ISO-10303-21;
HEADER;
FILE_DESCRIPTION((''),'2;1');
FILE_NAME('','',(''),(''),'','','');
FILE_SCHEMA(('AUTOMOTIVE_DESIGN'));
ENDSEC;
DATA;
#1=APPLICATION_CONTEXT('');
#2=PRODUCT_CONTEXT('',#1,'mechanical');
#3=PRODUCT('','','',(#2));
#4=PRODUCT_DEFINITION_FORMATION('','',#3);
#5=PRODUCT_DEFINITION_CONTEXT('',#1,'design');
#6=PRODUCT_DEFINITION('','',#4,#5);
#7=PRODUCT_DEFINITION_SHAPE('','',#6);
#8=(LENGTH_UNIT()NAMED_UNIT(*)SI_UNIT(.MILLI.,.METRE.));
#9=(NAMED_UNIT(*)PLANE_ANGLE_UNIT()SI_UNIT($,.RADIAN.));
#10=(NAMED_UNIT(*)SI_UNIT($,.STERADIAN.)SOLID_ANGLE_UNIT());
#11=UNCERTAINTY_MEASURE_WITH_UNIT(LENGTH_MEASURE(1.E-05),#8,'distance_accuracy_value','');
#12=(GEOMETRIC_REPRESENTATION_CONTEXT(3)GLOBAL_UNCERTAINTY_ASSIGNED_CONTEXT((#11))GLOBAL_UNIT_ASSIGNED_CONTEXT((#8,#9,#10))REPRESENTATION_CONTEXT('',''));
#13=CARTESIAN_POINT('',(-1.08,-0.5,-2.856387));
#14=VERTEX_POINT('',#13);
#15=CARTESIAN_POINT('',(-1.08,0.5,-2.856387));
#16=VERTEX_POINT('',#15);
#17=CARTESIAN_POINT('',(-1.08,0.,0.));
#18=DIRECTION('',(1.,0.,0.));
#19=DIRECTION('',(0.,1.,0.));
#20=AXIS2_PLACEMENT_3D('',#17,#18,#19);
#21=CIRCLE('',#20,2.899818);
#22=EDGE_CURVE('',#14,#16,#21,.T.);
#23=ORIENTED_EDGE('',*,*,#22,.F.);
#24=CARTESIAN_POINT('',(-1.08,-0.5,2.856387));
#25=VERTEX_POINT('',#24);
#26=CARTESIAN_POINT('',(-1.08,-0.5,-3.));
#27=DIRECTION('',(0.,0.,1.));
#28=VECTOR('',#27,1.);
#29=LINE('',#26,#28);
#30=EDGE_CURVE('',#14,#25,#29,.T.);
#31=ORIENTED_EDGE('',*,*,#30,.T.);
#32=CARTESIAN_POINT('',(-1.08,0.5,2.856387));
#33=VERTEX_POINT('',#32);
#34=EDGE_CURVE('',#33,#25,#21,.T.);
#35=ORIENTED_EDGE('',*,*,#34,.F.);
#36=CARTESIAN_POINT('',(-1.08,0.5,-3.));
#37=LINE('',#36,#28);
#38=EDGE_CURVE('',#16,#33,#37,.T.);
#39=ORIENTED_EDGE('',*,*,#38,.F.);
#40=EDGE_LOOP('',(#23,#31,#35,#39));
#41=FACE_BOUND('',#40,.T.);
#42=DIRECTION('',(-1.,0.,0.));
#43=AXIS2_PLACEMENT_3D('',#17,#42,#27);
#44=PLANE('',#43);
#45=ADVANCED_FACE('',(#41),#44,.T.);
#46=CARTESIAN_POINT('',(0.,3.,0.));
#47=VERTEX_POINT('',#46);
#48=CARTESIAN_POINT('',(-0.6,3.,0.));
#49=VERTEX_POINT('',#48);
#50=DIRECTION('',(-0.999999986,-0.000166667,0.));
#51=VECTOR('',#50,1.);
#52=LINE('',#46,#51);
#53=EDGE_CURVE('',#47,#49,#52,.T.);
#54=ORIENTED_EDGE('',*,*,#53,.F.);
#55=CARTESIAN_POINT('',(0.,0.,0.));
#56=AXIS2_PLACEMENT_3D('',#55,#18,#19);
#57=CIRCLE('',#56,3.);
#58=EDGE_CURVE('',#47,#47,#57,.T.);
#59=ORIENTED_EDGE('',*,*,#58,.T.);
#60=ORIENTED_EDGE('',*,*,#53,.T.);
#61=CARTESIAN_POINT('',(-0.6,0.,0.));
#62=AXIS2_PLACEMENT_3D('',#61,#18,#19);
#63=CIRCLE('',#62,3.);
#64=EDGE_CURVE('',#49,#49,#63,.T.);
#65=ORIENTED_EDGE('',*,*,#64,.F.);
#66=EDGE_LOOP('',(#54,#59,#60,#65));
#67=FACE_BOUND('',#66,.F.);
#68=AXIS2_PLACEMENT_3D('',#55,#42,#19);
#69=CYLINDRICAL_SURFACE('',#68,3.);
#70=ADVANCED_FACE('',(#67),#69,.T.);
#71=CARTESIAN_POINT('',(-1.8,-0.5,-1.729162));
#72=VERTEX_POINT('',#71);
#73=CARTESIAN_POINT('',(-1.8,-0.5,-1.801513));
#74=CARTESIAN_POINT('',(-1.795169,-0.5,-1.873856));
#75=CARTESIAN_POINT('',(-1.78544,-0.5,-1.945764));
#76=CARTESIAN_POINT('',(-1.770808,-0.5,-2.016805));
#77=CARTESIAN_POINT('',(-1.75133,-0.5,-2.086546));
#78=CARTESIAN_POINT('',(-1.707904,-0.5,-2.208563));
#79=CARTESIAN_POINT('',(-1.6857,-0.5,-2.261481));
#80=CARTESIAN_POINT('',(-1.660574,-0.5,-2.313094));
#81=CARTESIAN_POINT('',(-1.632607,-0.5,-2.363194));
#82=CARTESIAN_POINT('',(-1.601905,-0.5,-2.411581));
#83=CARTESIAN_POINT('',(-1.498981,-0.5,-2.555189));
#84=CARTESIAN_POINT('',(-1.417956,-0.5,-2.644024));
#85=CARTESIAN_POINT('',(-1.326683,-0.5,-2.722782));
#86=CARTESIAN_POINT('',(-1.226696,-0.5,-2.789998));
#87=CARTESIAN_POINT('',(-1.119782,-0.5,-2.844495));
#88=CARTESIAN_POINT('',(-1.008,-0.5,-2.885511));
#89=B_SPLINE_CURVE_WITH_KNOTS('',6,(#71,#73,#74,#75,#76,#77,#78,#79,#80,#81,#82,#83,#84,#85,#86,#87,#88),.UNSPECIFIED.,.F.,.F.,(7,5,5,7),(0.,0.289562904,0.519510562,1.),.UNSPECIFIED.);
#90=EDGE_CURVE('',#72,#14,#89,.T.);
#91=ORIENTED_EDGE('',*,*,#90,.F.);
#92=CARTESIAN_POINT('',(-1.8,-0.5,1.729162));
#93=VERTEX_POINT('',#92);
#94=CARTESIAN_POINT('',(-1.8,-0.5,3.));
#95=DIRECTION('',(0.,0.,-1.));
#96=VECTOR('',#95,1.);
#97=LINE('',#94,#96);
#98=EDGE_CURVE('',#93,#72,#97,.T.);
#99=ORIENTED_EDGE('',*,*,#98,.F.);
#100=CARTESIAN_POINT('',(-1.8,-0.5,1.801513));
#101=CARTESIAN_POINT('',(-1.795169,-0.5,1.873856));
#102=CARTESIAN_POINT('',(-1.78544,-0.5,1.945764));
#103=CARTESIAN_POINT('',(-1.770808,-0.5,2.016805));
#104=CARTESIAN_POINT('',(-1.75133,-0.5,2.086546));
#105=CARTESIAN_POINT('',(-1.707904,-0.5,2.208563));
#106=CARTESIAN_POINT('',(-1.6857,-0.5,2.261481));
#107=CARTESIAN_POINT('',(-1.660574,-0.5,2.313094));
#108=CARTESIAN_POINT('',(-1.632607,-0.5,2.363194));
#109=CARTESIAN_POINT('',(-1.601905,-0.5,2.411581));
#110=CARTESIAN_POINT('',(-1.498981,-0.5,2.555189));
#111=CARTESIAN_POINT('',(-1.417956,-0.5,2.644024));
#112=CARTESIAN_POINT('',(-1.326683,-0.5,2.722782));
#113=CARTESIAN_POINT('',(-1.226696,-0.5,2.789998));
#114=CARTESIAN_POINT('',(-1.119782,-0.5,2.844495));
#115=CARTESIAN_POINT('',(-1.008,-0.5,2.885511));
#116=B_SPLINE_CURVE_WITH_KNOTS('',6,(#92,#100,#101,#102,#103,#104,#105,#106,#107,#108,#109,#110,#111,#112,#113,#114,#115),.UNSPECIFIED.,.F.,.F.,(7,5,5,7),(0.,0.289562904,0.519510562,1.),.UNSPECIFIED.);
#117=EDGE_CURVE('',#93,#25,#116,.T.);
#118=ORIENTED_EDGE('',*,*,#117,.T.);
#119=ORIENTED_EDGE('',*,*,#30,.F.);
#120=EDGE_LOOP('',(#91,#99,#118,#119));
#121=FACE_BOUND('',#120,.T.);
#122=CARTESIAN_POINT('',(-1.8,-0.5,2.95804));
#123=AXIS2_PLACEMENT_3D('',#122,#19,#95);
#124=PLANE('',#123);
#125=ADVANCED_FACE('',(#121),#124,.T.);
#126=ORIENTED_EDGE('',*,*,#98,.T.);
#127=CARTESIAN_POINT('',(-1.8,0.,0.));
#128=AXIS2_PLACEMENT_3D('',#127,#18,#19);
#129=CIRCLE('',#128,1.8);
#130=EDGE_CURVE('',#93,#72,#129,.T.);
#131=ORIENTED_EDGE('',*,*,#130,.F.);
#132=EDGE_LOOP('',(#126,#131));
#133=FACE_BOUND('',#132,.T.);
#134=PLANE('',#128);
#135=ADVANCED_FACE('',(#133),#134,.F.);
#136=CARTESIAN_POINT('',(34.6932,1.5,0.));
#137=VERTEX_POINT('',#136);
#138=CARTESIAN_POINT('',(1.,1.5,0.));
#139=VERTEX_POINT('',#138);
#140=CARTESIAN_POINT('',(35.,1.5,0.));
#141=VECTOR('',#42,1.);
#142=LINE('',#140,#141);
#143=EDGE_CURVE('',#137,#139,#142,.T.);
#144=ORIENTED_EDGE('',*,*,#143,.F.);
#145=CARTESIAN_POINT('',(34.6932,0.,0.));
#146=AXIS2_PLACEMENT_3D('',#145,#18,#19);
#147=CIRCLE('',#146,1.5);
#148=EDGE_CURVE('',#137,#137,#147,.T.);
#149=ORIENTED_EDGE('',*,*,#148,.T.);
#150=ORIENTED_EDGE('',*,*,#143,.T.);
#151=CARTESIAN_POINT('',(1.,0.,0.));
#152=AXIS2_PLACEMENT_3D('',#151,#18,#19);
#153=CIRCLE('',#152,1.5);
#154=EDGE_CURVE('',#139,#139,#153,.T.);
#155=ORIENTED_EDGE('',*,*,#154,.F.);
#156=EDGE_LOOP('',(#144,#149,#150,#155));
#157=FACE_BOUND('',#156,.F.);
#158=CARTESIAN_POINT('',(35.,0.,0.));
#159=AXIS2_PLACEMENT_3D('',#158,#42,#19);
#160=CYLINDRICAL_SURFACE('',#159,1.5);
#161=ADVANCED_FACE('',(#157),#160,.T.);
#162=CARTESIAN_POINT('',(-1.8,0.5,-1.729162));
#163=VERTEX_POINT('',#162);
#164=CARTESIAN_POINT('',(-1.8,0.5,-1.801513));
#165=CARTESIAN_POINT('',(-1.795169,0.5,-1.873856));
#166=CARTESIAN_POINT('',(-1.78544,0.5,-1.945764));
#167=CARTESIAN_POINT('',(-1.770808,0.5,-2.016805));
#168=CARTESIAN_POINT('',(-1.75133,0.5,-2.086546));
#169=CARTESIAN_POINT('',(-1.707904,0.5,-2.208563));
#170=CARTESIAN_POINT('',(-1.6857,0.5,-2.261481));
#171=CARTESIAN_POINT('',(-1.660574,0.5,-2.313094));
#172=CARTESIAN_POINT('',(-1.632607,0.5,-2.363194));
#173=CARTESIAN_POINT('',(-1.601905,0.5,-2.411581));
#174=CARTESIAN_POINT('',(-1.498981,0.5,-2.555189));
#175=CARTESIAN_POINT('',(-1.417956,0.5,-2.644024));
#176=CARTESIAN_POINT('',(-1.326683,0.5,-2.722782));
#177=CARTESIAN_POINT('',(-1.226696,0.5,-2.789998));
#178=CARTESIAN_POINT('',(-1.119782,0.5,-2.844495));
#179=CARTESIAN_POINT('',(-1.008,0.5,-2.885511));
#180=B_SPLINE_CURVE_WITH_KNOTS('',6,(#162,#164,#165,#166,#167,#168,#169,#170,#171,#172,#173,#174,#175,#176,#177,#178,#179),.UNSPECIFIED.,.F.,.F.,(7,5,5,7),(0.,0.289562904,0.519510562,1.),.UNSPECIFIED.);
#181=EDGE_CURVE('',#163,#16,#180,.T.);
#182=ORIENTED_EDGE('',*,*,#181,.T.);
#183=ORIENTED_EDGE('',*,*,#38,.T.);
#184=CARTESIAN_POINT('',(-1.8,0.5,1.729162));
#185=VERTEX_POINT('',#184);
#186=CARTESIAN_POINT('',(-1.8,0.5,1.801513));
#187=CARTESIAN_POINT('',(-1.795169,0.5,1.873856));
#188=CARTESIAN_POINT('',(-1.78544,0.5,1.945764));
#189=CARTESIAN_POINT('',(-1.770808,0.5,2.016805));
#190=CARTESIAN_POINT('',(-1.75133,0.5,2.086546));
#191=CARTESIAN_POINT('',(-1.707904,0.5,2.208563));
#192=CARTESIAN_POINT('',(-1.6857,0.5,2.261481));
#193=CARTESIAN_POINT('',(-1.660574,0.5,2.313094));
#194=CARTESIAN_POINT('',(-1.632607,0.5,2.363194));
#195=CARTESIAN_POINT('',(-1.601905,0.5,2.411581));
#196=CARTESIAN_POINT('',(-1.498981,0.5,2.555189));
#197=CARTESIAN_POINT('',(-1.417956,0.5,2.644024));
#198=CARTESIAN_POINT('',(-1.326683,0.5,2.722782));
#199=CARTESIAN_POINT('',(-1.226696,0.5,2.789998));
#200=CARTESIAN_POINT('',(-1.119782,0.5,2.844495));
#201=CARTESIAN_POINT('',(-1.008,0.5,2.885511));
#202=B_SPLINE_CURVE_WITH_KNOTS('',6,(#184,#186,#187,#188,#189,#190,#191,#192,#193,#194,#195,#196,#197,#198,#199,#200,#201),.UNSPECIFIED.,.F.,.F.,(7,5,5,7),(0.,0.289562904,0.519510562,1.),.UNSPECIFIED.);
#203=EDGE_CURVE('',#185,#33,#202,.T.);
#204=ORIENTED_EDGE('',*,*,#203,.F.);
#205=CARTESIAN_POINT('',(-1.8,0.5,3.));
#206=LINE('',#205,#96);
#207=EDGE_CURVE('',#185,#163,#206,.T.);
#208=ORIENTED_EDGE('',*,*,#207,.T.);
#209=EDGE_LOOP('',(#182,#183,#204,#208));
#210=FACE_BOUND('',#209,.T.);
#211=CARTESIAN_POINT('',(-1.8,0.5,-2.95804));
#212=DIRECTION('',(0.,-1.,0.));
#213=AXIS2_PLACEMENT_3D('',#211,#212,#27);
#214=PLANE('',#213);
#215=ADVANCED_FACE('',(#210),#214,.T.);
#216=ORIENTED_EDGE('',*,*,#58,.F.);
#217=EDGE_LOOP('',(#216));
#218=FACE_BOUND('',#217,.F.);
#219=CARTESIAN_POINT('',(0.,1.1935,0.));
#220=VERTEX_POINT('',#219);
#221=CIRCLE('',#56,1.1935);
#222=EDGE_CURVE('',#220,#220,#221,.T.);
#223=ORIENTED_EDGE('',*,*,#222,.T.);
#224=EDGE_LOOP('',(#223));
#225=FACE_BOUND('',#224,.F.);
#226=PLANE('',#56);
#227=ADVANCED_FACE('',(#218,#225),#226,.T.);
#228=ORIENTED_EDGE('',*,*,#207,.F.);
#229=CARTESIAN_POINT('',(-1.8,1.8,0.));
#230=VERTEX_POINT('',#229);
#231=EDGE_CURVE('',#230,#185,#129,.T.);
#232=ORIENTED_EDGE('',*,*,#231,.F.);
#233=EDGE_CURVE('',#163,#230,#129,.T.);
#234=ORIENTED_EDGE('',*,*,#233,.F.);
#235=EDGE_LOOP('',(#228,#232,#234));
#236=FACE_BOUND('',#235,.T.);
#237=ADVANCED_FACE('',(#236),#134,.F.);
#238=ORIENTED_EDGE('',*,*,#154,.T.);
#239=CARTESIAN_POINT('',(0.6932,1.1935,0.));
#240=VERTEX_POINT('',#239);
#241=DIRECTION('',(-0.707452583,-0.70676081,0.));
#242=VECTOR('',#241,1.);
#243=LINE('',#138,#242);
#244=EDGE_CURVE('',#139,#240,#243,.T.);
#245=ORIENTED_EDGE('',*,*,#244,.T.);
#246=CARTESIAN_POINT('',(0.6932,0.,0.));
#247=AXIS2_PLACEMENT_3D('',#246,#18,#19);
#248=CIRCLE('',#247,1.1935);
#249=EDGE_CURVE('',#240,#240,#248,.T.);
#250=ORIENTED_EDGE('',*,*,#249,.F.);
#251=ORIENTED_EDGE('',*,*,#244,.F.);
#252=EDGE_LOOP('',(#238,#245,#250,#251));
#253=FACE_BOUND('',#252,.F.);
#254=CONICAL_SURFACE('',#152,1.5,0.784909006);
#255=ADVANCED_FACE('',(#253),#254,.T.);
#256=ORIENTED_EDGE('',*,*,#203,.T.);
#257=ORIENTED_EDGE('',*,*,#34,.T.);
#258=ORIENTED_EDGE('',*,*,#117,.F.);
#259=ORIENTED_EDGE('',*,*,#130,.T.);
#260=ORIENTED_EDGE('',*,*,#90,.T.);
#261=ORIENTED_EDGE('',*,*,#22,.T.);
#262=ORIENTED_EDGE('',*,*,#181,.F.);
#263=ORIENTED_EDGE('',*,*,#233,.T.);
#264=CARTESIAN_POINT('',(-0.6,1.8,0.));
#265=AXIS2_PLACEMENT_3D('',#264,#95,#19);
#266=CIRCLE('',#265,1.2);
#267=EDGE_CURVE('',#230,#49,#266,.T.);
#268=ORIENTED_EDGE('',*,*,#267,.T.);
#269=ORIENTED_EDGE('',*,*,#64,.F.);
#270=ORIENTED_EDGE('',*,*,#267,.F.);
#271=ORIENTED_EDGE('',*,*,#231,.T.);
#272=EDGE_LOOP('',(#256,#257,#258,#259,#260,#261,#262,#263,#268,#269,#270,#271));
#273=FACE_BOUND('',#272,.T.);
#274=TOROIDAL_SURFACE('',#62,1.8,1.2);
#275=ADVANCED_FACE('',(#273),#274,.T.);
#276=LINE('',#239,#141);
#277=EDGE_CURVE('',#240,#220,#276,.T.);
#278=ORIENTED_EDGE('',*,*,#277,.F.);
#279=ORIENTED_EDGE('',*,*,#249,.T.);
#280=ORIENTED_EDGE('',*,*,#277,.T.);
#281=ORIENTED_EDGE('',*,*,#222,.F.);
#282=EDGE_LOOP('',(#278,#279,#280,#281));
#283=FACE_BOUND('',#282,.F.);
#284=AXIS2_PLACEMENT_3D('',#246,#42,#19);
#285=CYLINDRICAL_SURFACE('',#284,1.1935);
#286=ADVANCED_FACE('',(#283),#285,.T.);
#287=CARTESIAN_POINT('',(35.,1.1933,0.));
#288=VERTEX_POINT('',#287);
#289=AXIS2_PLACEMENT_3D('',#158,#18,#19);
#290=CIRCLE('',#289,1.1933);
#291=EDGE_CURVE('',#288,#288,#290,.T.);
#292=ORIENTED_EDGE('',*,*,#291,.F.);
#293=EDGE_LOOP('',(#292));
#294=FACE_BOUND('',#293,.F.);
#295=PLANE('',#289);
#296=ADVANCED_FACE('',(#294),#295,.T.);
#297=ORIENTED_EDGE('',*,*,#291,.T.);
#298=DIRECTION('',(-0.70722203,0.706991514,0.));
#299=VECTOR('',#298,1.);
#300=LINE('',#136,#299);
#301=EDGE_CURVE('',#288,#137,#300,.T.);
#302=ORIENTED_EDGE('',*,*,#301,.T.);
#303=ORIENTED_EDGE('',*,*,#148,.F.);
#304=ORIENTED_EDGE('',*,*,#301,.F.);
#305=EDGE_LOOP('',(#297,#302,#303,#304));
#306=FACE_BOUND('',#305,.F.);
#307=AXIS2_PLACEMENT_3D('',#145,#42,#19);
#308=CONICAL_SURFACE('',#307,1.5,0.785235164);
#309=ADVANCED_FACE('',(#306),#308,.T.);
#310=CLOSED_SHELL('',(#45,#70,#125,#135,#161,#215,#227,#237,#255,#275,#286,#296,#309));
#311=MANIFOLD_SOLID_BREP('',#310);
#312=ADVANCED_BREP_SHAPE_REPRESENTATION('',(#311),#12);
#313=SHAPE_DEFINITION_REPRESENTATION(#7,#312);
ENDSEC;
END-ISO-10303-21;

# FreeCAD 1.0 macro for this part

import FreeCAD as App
import Part
import Sketcher
from FreeCAD import Vector
Q = App.Units.Quantity


def edges_at(feature, points):
    """Names of the edges that pass closest to the given points."""
    edges = feature.Shape.Edges
    near = lambda p: min(range(len(edges)), key=lambda i: edges[i].distToShape(Part.Vertex(*p))[0])
    return sorted({f"Edge{near(p) + 1}" for p in points})

doc = App.newDocument("Part")
params = doc.addObject("Spreadsheet::Sheet", "Params")
for row, (alias, value) in enumerate([
    ("sketch1_width", "34 mm"),
    ("sketch1_length", "1.8 mm"),
    ("sketch1_height", "1.5 mm"),
    ("revolution_angle", "360 deg"),
    ("fillet_radius", "1.2 mm"),
    ("sketch2_width", "1 mm"),
    ("sketch2_height", "6 mm"),
    ("pocket1_length", "0.72 mm"),
    ("chamfer_size", "0.3067 mm"),
    ("chamfer_size2", "0.3068 mm"),
], start=1):
    params.set(f"A{row}", alias)
    params.set(f"B{row}", "=" + value)
    params.setAlias(f"B{row}", alias)

body = doc.addObject("PartDesign::Body", "Body")

sketch1 = body.newObject("Sketcher::SketchObject", "Sketch")
sketch1.AttachmentSupport = (doc.getObject("XY_Plane"), [""])
sketch1.MapMode = "FlatFace"
sketch1.addGeometry([
    Part.LineSegment(Vector(-1.8, 2.9997, 0), Vector(-1.8, 0, 0)),
    Part.LineSegment(Vector(-1.8, 0, 0), Vector(35, 0, 0)),
    Part.LineSegment(Vector(35, 0, 0), Vector(35, 1.5, 0)),
    Part.LineSegment(Vector(35, 1.5, 0), Vector(1, 1.5, 0)),
    Part.LineSegment(Vector(1, 1.5, 0), Vector(0.6932, 1.1935, 0)),
    Part.LineSegment(Vector(0.6932, 1.1935, 0), Vector(0, 1.1935, 0)),
    Part.LineSegment(Vector(0, 1.1935, 0), Vector(0, 3, 0)),
    Part.LineSegment(Vector(0, 3, 0), Vector(-1.8, 2.9997, 0)),
], False)
sketch1.addConstraint([
    Sketcher.Constraint("Coincident", 0, 2, 1, 1),
    Sketcher.Constraint("Coincident", 1, 2, 2, 1),
    Sketcher.Constraint("Coincident", 2, 2, 3, 1),
    Sketcher.Constraint("Coincident", 3, 2, 4, 1),
    Sketcher.Constraint("Coincident", 4, 2, 5, 1),
    Sketcher.Constraint("Coincident", 5, 2, 6, 1),
    Sketcher.Constraint("Coincident", 6, 2, 7, 1),
    Sketcher.Constraint("Coincident", 7, 2, 0, 1),
    Sketcher.Constraint("Vertical", 0),
    Sketcher.Constraint("Horizontal", 1),
    Sketcher.Constraint("Vertical", 2),
    Sketcher.Constraint("Horizontal", 3),
    Sketcher.Constraint("Horizontal", 5),
    Sketcher.Constraint("Vertical", 6),
    Sketcher.Constraint("PointOnObject", 0, 2, -1),
    Sketcher.Constraint("PointOnObject", 5, 2, -2),
    Sketcher.Constraint("DistanceX", 3, 2, 3, 1, Q("34 mm")),
    Sketcher.Constraint("DistanceX", -1, 1, 1, 2, Q("35 mm")),
    Sketcher.Constraint("DistanceY", -1, 1, 6, 2, Q("3 mm")),
    Sketcher.Constraint("Distance", 7, Q("1.8 mm")),
    Sketcher.Constraint("DistanceY", 0, 2, 0, 1, Q("2.9997 mm")),
    Sketcher.Constraint("DistanceY", 2, 1, 2, 2, Q("1.5 mm")),
    Sketcher.Constraint("DistanceX", 4, 2, 3, 2, Q("0.3068 mm")),
    Sketcher.Constraint("DistanceY", 4, 2, 3, 2, Q("0.3065 mm")),
])
sketch1.setExpression("Constraints[16]", "Params.sketch1_width")
sketch1.setExpression("Constraints[19]", "Params.sketch1_length")
sketch1.setExpression("Constraints[21]", "Params.sketch1_height")
revolution = body.newObject("PartDesign::Revolution", "Revolution")
revolution.Profile = sketch1
revolution.ReferenceAxis = (sketch1, ["H_Axis"])
revolution.setExpression("Angle", "Params.revolution_angle")
doc.recompute()

fillet = body.newObject("PartDesign::Fillet", "Fillet")
fillet.Base = (revolution, edges_at(revolution, [(-1.8, -3, 0)]))
fillet.setExpression("Radius", "Params.fillet_radius")

sketch2 = body.newObject("Sketcher::SketchObject", "Sketch001")
sketch2.AttachmentSupport = (doc.getObject("YZ_Plane"), [""])
sketch2.MapMode = "FlatFace"
sketch2.AttachmentOffset = App.Placement(Vector(0, 0, -1.8), App.Rotation())
sketch2.addGeometry([
    Part.LineSegment(Vector(-0.5, 3, 0), Vector(0.5, 3, 0)),
    Part.LineSegment(Vector(0.5, 3, 0), Vector(0.5, -3, 0)),
    Part.LineSegment(Vector(0.5, -3, 0), Vector(-0.5, -3, 0)),
    Part.LineSegment(Vector(-0.5, -3, 0), Vector(-0.5, 3, 0)),
], False)
sketch2.addConstraint([
    Sketcher.Constraint("Coincident", 0, 2, 1, 1),
    Sketcher.Constraint("Coincident", 1, 2, 2, 1),
    Sketcher.Constraint("Coincident", 2, 2, 3, 1),
    Sketcher.Constraint("Coincident", 3, 2, 0, 1),
    Sketcher.Constraint("Horizontal", 0),
    Sketcher.Constraint("Vertical", 1),
    Sketcher.Constraint("Horizontal", 2),
    Sketcher.Constraint("Vertical", 3),
    Sketcher.Constraint("Symmetric", 0, 2, 2, 2, -1, 1),
    Sketcher.Constraint("DistanceX", 0, 1, 0, 2, Q("1 mm")),
    Sketcher.Constraint("DistanceY", 1, 2, 1, 1, Q("6 mm")),
])
sketch2.setExpression("Constraints[9]", "Params.sketch2_width")
sketch2.setExpression("Constraints[10]", "Params.sketch2_height")
pocket1 = body.newObject("PartDesign::Pocket", "Pocket")
pocket1.Profile = sketch2
pocket1.setExpression("Length", "Params.pocket1_length")
pocket1.Reversed = True
doc.recompute()

chamfer = body.newObject("PartDesign::Chamfer", "Chamfer")
chamfer.Base = (pocket1, edges_at(pocket1, [(35, -1.5, 0)]))
chamfer.ChamferType = "Two distances"
chamfer.setExpression("Size", "Params.chamfer_size")
chamfer.setExpression("Size2", "Params.chamfer_size2")

doc.recompute()
